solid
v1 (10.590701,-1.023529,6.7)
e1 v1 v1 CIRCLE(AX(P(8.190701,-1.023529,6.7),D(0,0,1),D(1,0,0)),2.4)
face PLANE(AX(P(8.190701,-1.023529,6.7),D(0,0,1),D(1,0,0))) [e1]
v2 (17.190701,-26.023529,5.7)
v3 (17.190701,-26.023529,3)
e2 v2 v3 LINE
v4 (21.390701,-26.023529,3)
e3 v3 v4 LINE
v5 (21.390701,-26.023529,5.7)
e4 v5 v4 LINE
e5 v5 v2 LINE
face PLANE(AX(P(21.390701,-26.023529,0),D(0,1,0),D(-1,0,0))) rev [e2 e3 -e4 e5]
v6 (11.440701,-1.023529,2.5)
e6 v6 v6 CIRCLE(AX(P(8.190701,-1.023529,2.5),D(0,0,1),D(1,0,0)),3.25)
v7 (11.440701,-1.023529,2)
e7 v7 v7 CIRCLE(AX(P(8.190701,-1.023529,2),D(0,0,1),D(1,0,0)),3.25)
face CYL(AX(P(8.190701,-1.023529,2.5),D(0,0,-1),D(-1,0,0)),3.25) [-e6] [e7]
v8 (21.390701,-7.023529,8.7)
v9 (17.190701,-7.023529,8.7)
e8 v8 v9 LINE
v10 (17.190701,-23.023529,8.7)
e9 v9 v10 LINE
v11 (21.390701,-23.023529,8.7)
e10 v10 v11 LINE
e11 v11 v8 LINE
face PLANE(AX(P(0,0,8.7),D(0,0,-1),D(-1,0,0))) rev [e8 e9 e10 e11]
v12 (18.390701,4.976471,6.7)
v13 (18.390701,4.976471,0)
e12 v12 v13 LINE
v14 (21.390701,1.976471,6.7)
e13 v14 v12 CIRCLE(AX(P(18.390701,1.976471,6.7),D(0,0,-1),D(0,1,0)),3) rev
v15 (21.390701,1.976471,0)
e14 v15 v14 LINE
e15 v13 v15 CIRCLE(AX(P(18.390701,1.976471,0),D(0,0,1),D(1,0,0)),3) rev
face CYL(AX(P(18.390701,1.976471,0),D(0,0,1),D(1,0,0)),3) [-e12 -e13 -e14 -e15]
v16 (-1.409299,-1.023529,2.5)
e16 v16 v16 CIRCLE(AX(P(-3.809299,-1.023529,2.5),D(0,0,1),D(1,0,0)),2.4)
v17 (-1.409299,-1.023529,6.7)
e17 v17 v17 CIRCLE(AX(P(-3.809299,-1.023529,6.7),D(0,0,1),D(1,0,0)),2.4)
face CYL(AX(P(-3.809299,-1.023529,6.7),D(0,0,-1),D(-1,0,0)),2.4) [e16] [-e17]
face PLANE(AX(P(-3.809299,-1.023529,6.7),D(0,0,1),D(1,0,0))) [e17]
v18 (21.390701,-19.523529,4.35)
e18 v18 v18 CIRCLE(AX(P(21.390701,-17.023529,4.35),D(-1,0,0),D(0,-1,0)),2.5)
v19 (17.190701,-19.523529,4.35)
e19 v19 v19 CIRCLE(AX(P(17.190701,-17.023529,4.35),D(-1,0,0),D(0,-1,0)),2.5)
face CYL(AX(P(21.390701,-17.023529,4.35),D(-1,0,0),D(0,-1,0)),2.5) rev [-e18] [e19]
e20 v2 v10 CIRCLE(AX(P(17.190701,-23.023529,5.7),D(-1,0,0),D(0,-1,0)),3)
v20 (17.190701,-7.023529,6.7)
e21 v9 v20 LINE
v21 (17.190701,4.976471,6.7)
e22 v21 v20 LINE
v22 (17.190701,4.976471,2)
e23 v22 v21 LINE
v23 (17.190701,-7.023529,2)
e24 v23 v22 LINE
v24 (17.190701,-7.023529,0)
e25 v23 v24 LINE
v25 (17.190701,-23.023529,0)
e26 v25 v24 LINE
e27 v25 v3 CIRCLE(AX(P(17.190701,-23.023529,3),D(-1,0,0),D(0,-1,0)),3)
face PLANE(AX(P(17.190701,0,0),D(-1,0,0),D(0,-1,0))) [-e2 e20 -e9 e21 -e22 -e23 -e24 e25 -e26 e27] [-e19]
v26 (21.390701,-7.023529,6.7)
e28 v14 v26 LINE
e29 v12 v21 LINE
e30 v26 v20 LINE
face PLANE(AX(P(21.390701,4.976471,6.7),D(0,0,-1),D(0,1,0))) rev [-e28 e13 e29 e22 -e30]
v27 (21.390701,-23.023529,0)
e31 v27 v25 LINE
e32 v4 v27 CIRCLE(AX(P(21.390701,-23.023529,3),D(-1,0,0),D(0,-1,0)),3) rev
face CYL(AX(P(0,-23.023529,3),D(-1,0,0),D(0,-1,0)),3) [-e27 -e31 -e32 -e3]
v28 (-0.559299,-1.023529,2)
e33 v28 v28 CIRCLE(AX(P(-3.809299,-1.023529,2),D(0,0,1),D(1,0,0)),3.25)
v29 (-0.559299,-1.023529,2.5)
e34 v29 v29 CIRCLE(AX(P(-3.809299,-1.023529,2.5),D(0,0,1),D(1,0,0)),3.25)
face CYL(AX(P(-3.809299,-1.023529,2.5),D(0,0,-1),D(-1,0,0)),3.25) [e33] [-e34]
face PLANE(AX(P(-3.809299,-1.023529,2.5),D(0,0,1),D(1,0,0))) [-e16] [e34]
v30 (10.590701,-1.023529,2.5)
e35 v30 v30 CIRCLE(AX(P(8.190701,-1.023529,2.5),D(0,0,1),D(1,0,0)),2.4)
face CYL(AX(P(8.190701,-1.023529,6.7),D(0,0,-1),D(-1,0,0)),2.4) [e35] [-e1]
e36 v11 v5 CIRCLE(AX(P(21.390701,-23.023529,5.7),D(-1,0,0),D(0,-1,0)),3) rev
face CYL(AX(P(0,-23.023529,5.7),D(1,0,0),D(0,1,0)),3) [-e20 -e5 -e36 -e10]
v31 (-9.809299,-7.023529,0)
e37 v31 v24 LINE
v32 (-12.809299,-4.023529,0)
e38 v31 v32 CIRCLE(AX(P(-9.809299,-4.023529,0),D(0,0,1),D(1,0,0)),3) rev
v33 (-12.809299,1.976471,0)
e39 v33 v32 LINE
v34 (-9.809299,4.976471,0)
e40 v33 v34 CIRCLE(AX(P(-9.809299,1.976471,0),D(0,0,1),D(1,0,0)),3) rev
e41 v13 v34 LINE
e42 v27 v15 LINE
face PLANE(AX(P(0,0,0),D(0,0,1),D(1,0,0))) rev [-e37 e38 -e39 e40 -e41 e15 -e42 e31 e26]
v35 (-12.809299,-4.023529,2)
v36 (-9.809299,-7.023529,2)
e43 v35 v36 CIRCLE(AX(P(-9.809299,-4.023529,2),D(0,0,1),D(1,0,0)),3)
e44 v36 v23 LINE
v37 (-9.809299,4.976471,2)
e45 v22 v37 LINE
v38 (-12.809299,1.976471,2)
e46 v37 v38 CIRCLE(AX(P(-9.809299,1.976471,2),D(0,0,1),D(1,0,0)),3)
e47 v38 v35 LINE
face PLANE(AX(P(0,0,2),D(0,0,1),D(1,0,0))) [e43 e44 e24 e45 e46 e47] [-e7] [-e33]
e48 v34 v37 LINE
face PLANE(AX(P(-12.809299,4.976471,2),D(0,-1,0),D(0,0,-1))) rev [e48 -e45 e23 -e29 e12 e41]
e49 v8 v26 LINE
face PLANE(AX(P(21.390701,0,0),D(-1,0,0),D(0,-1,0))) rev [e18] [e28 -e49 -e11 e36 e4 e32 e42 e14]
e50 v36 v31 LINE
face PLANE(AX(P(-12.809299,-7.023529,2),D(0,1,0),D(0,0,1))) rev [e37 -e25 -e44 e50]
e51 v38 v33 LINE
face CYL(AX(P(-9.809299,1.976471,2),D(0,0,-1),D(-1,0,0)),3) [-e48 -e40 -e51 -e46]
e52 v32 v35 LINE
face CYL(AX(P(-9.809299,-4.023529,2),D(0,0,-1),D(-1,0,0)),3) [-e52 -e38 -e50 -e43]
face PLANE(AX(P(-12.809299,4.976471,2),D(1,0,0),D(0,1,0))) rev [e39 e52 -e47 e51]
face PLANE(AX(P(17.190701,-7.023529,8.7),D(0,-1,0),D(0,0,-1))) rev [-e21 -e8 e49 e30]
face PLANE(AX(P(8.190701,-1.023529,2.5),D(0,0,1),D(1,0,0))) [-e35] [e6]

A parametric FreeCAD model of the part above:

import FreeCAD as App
import Part
import Sketcher
from FreeCAD import Vector


def edges_at(feature, points):
    """Names of the edges that pass closest to the given points."""
    edges = feature.Shape.Edges
    near = lambda p: min(range(len(edges)), key=lambda i: edges[i].distToShape(Part.Vertex(*p))[0])
    return sorted({f"Edge{near(p) + 1}" for p in points})

doc = App.newDocument("Part")
params = doc.addObject("Spreadsheet::Sheet", "Params")
for row, (alias, value) in enumerate([
    ("sketch1_width", "30 mm"),
    ("sketch1_height", "12 mm"),
    ("pad1_length", "2 mm"),
    ("sketch2_diameter", "6.5 mm"),
    ("pad2_length", "0.5 mm"),
    ("sketch3_diameter", "4.8 mm"),
    ("pad3_length", "4.2 mm"),
    ("sketch4_width", "31 mm"),
    ("sketch4_height", "6.7 mm"),
    ("pad4_length", "4.2 mm"),
    ("sketch5_height", "19 mm"),
    ("sketch5_width", "4.2 mm"),
    ("pad5_length", "2 mm"),
    ("sketch6_diameter", "5 mm"),
    ("pocket1_length", "4.2 mm"),
    ("fillet_radius", "3 mm"),
], start=1):
    params.set(f"A{row}", alias)
    params.set(f"B{row}", "=" + value)
    params.setAlias(f"B{row}", alias)

body = doc.addObject("PartDesign::Body", "Body")

sketch1 = body.newObject("Sketcher::SketchObject", "Sketch")
sketch1.AttachmentSupport = (doc.getObject("XY_Plane"), [""])
sketch1.MapMode = "FlatFace"
sketch1.addGeometry(Part.LineSegment(Vector(-12.809299, 4.976471, 0), Vector(-12.809299, -7.023529, 0)), False)
sketch1.addGeometry(Part.LineSegment(Vector(-12.809299, -7.023529, 0), Vector(17.190701, -7.023529, 0)), False)
sketch1.addGeometry(Part.LineSegment(Vector(17.190701, -7.023529, 0), Vector(17.190701, 4.976471, 0)), False)
sketch1.addGeometry(Part.LineSegment(Vector(17.190701, 4.976471, 0), Vector(-12.809299, 4.976471, 0)), False)
sketch1.addConstraint(Sketcher.Constraint("Coincident", 0, 2, 1, 1))
sketch1.addConstraint(Sketcher.Constraint("Coincident", 1, 2, 2, 1))
sketch1.addConstraint(Sketcher.Constraint("Coincident", 2, 2, 3, 1))
sketch1.addConstraint(Sketcher.Constraint("Coincident", 3, 2, 0, 1))
sketch1.addConstraint(Sketcher.Constraint("Vertical", 0))
sketch1.addConstraint(Sketcher.Constraint("Horizontal", 1))
sketch1.addConstraint(Sketcher.Constraint("Vertical", 2))
sketch1.addConstraint(Sketcher.Constraint("Horizontal", 3))
sketch1.addConstraint(Sketcher.Constraint("DistanceX", 1, 1, 1, 2, 30.0))
sketch1.addConstraint(Sketcher.Constraint("DistanceY", 0, 2, 0, 1, 12.0))
sketch1.addConstraint(Sketcher.Constraint("DistanceX", 0, 2, -1, 1, 12.809299))
sketch1.addConstraint(Sketcher.Constraint("DistanceY", 0, 2, -1, 1, 7.023529))
sketch1.setExpression("Constraints[8]", "Params.sketch1_width")
sketch1.setExpression("Constraints[9]", "Params.sketch1_height")
pad1 = body.newObject("PartDesign::Pad", "Pad")
pad1.Profile = sketch1
pad1.setExpression("Length", "Params.pad1_length")

sketch2 = body.newObject("Sketcher::SketchObject", "Sketch001")
sketch2.AttachmentSupport = (doc.getObject("XY_Plane"), [""])
sketch2.MapMode = "FlatFace"
sketch2.AttachmentOffset = App.Placement(Vector(0, 0, 2), App.Rotation())
sketch2.addGeometry(Part.Circle(Vector(8.190701, -1.023529, 0), Vector(0, 0, 1), 3.25), False)
sketch2.addGeometry(Part.Circle(Vector(-3.809299, -1.023529, 0), Vector(0, 0, 1), 3.25), False)
sketch2.addConstraint(Sketcher.Constraint("Equal", 0, 1))
sketch2.addConstraint(Sketcher.Constraint("Horizontal", 0, 3, 1, 3))
sketch2.addConstraint(Sketcher.Constraint("Diameter", 0, 6.5))
sketch2.addConstraint(Sketcher.Constraint("DistanceX", 1, 3, 0, 3, 12.0))
sketch2.addConstraint(Sketcher.Constraint("DistanceX", -1, 1, 0, 3, 8.190701))
sketch2.addConstraint(Sketcher.Constraint("DistanceY", 0, 3, -1, 1, 1.023529))
sketch2.setExpression("Constraints[2]", "Params.sketch2_diameter")
pad2 = body.newObject("PartDesign::Pad", "Pad001")
pad2.Profile = sketch2
pad2.setExpression("Length", "Params.pad2_length")

sketch3 = body.newObject("Sketcher::SketchObject", "Sketch002")
sketch3.AttachmentSupport = (doc.getObject("XY_Plane"), [""])
sketch3.MapMode = "FlatFace"
sketch3.AttachmentOffset = App.Placement(Vector(0, 0, 2.5), App.Rotation())
sketch3.addGeometry(Part.Circle(Vector(-3.809299, -1.023529, 0), Vector(0, 0, 1), 2.4), False)
sketch3.addGeometry(Part.Circle(Vector(8.190701, -1.023529, 0), Vector(0, 0, 1), 2.4), False)
sketch3.addConstraint(Sketcher.Constraint("Equal", 0, 1))
sketch3.addConstraint(Sketcher.Constraint("Horizontal", 0, 3, 1, 3))
sketch3.addConstraint(Sketcher.Constraint("Diameter", 0, 4.8))
sketch3.addConstraint(Sketcher.Constraint("DistanceX", 0, 3, 1, 3, 12.0))
sketch3.addConstraint(Sketcher.Constraint("DistanceX", 0, 3, -1, 1, 3.809299))
sketch3.addConstraint(Sketcher.Constraint("DistanceY", 0, 3, -1, 1, 1.023529))
sketch3.setExpression("Constraints[2]", "Params.sketch3_diameter")
pad3 = body.newObject("PartDesign::Pad", "Pad002")
pad3.Profile = sketch3
pad3.setExpression("Length", "Params.pad3_length")

sketch4 = body.newObject("Sketcher::SketchObject", "Sketch003")
sketch4.AttachmentSupport = (doc.getObject("YZ_Plane"), [""])
sketch4.MapMode = "FlatFace"
sketch4.AttachmentOffset = App.Placement(Vector(0, 0, 17.190701), App.Rotation())
sketch4.addGeometry(Part.LineSegment(Vector(4.976471, 6.7, 0), Vector(-26.023529, 6.7, 0)), False)
sketch4.addGeometry(Part.LineSegment(Vector(-26.023529, 6.7, 0), Vector(-26.023529, 0, 0)), False)
sketch4.addGeometry(Part.LineSegment(Vector(-26.023529, 0, 0), Vector(4.976471, 0, 0)), False)
sketch4.addGeometry(Part.LineSegment(Vector(4.976471, 0, 0), Vector(4.976471, 6.7, 0)), False)
sketch4.addConstraint(Sketcher.Constraint("Coincident", 0, 2, 1, 1))
sketch4.addConstraint(Sketcher.Constraint("Coincident", 1, 2, 2, 1))
sketch4.addConstraint(Sketcher.Constraint("Coincident", 2, 2, 3, 1))
sketch4.addConstraint(Sketcher.Constraint("Coincident", 3, 2, 0, 1))
sketch4.addConstraint(Sketcher.Constraint("Horizontal", 0))
sketch4.addConstraint(Sketcher.Constraint("Vertical", 1))
sketch4.addConstraint(Sketcher.Constraint("Horizontal", 2))
sketch4.addConstraint(Sketcher.Constraint("Vertical", 3))
sketch4.addConstraint(Sketcher.Constraint("PointOnObject", 1, 2, -1))
sketch4.addConstraint(Sketcher.Constraint("DistanceX", 0, 2, 0, 1, 31.0))
sketch4.addConstraint(Sketcher.Constraint("DistanceY", 1, 2, 1, 1, 6.7))
sketch4.addConstraint(Sketcher.Constraint("DistanceX", 0, 2, -1, 1, 26.023529))
sketch4.setExpression("Constraints[9]", "Params.sketch4_width")
sketch4.setExpression("Constraints[10]", "Params.sketch4_height")
pad4 = body.newObject("PartDesign::Pad", "Pad003")
pad4.Profile = sketch4
pad4.setExpression("Length", "Params.pad4_length")

sketch5 = body.newObject("Sketcher::SketchObject", "Sketch004")
sketch5.AttachmentSupport = (doc.getObject("XY_Plane"), [""])
sketch5.MapMode = "FlatFace"
sketch5.AttachmentOffset = App.Placement(Vector(0, 0, 6.7), App.Rotation())
sketch5.addGeometry(Part.LineSegment(Vector(17.190701, -7.023529, 0), Vector(17.190701, -26.023529, 0)), False)
sketch5.addGeometry(Part.LineSegment(Vector(17.190701, -26.023529, 0), Vector(21.390701, -26.023529, 0)), False)
sketch5.addGeometry(Part.LineSegment(Vector(21.390701, -26.023529, 0), Vector(21.390701, -7.023529, 0)), False)
sketch5.addGeometry(Part.LineSegment(Vector(21.390701, -7.023529, 0), Vector(17.190701, -7.023529, 0)), False)
sketch5.addConstraint(Sketcher.Constraint("Coincident", 0, 2, 1, 1))
sketch5.addConstraint(Sketcher.Constraint("Coincident", 1, 2, 2, 1))
sketch5.addConstraint(Sketcher.Constraint("Coincident", 2, 2, 3, 1))
sketch5.addConstraint(Sketcher.Constraint("Coincident", 3, 2, 0, 1))
sketch5.addConstraint(Sketcher.Constraint("Vertical", 0))
sketch5.addConstraint(Sketcher.Constraint("Horizontal", 1))
sketch5.addConstraint(Sketcher.Constraint("Vertical", 2))
sketch5.addConstraint(Sketcher.Constraint("Horizontal", 3))
sketch5.addConstraint(Sketcher.Constraint("DistanceY", 0, 2, 0, 1, 19.0))
sketch5.addConstraint(Sketcher.Constraint("DistanceX", 1, 1, 1, 2, 4.2))
sketch5.addConstraint(Sketcher.Constraint("DistanceX", -1, 1, 0, 2, 17.190701))
sketch5.addConstraint(Sketcher.Constraint("DistanceY", 0, 2, -1, 1, 26.023529))
sketch5.setExpression("Constraints[8]", "Params.sketch5_height")
sketch5.setExpression("Constraints[9]", "Params.sketch5_width")
pad5 = body.newObject("PartDesign::Pad", "Pad004")
pad5.Profile = sketch5
pad5.setExpression("Length", "Params.pad5_length")

sketch6 = body.newObject("Sketcher::SketchObject", "Sketch005")
sketch6.AttachmentSupport = (doc.getObject("YZ_Plane"), [""])
sketch6.MapMode = "FlatFace"
sketch6.AttachmentOffset = App.Placement(Vector(0, 0, 17.190701), App.Rotation())
sketch6.addGeometry(Part.Circle(Vector(-17.023529, 4.35, 0), Vector(0, 0, 1), 2.5), False)
sketch6.addConstraint(Sketcher.Constraint("Diameter", 0, 5.0))
sketch6.addConstraint(Sketcher.Constraint("DistanceY", -1, 1, 0, 3, 4.35))
sketch6.addConstraint(Sketcher.Constraint("DistanceX", 0, 3, -1, 1, 17.023529))
sketch6.setExpression("Constraints[0]", "Params.sketch6_diameter")
pocket1 = body.newObject("PartDesign::Pocket", "Pocket")
pocket1.Profile = sketch6
pocket1.setExpression("Length", "Params.pocket1_length")
pocket1.Reversed = True
doc.recompute()

fillet = body.newObject("PartDesign::Fillet", "Fillet")
fillet.Base = (pocket1, edges_at(pocket1, [
    (19.291, -26.024, 0),
    (21.391, 4.976, 3.35),
    (19.291, -26.024, 8.7),
    (-12.809, 4.976, 1),
    (-12.809, -7.024, 1),
]))
fillet.setExpression("Radius", "Params.fillet_radius")

doc.recompute()
